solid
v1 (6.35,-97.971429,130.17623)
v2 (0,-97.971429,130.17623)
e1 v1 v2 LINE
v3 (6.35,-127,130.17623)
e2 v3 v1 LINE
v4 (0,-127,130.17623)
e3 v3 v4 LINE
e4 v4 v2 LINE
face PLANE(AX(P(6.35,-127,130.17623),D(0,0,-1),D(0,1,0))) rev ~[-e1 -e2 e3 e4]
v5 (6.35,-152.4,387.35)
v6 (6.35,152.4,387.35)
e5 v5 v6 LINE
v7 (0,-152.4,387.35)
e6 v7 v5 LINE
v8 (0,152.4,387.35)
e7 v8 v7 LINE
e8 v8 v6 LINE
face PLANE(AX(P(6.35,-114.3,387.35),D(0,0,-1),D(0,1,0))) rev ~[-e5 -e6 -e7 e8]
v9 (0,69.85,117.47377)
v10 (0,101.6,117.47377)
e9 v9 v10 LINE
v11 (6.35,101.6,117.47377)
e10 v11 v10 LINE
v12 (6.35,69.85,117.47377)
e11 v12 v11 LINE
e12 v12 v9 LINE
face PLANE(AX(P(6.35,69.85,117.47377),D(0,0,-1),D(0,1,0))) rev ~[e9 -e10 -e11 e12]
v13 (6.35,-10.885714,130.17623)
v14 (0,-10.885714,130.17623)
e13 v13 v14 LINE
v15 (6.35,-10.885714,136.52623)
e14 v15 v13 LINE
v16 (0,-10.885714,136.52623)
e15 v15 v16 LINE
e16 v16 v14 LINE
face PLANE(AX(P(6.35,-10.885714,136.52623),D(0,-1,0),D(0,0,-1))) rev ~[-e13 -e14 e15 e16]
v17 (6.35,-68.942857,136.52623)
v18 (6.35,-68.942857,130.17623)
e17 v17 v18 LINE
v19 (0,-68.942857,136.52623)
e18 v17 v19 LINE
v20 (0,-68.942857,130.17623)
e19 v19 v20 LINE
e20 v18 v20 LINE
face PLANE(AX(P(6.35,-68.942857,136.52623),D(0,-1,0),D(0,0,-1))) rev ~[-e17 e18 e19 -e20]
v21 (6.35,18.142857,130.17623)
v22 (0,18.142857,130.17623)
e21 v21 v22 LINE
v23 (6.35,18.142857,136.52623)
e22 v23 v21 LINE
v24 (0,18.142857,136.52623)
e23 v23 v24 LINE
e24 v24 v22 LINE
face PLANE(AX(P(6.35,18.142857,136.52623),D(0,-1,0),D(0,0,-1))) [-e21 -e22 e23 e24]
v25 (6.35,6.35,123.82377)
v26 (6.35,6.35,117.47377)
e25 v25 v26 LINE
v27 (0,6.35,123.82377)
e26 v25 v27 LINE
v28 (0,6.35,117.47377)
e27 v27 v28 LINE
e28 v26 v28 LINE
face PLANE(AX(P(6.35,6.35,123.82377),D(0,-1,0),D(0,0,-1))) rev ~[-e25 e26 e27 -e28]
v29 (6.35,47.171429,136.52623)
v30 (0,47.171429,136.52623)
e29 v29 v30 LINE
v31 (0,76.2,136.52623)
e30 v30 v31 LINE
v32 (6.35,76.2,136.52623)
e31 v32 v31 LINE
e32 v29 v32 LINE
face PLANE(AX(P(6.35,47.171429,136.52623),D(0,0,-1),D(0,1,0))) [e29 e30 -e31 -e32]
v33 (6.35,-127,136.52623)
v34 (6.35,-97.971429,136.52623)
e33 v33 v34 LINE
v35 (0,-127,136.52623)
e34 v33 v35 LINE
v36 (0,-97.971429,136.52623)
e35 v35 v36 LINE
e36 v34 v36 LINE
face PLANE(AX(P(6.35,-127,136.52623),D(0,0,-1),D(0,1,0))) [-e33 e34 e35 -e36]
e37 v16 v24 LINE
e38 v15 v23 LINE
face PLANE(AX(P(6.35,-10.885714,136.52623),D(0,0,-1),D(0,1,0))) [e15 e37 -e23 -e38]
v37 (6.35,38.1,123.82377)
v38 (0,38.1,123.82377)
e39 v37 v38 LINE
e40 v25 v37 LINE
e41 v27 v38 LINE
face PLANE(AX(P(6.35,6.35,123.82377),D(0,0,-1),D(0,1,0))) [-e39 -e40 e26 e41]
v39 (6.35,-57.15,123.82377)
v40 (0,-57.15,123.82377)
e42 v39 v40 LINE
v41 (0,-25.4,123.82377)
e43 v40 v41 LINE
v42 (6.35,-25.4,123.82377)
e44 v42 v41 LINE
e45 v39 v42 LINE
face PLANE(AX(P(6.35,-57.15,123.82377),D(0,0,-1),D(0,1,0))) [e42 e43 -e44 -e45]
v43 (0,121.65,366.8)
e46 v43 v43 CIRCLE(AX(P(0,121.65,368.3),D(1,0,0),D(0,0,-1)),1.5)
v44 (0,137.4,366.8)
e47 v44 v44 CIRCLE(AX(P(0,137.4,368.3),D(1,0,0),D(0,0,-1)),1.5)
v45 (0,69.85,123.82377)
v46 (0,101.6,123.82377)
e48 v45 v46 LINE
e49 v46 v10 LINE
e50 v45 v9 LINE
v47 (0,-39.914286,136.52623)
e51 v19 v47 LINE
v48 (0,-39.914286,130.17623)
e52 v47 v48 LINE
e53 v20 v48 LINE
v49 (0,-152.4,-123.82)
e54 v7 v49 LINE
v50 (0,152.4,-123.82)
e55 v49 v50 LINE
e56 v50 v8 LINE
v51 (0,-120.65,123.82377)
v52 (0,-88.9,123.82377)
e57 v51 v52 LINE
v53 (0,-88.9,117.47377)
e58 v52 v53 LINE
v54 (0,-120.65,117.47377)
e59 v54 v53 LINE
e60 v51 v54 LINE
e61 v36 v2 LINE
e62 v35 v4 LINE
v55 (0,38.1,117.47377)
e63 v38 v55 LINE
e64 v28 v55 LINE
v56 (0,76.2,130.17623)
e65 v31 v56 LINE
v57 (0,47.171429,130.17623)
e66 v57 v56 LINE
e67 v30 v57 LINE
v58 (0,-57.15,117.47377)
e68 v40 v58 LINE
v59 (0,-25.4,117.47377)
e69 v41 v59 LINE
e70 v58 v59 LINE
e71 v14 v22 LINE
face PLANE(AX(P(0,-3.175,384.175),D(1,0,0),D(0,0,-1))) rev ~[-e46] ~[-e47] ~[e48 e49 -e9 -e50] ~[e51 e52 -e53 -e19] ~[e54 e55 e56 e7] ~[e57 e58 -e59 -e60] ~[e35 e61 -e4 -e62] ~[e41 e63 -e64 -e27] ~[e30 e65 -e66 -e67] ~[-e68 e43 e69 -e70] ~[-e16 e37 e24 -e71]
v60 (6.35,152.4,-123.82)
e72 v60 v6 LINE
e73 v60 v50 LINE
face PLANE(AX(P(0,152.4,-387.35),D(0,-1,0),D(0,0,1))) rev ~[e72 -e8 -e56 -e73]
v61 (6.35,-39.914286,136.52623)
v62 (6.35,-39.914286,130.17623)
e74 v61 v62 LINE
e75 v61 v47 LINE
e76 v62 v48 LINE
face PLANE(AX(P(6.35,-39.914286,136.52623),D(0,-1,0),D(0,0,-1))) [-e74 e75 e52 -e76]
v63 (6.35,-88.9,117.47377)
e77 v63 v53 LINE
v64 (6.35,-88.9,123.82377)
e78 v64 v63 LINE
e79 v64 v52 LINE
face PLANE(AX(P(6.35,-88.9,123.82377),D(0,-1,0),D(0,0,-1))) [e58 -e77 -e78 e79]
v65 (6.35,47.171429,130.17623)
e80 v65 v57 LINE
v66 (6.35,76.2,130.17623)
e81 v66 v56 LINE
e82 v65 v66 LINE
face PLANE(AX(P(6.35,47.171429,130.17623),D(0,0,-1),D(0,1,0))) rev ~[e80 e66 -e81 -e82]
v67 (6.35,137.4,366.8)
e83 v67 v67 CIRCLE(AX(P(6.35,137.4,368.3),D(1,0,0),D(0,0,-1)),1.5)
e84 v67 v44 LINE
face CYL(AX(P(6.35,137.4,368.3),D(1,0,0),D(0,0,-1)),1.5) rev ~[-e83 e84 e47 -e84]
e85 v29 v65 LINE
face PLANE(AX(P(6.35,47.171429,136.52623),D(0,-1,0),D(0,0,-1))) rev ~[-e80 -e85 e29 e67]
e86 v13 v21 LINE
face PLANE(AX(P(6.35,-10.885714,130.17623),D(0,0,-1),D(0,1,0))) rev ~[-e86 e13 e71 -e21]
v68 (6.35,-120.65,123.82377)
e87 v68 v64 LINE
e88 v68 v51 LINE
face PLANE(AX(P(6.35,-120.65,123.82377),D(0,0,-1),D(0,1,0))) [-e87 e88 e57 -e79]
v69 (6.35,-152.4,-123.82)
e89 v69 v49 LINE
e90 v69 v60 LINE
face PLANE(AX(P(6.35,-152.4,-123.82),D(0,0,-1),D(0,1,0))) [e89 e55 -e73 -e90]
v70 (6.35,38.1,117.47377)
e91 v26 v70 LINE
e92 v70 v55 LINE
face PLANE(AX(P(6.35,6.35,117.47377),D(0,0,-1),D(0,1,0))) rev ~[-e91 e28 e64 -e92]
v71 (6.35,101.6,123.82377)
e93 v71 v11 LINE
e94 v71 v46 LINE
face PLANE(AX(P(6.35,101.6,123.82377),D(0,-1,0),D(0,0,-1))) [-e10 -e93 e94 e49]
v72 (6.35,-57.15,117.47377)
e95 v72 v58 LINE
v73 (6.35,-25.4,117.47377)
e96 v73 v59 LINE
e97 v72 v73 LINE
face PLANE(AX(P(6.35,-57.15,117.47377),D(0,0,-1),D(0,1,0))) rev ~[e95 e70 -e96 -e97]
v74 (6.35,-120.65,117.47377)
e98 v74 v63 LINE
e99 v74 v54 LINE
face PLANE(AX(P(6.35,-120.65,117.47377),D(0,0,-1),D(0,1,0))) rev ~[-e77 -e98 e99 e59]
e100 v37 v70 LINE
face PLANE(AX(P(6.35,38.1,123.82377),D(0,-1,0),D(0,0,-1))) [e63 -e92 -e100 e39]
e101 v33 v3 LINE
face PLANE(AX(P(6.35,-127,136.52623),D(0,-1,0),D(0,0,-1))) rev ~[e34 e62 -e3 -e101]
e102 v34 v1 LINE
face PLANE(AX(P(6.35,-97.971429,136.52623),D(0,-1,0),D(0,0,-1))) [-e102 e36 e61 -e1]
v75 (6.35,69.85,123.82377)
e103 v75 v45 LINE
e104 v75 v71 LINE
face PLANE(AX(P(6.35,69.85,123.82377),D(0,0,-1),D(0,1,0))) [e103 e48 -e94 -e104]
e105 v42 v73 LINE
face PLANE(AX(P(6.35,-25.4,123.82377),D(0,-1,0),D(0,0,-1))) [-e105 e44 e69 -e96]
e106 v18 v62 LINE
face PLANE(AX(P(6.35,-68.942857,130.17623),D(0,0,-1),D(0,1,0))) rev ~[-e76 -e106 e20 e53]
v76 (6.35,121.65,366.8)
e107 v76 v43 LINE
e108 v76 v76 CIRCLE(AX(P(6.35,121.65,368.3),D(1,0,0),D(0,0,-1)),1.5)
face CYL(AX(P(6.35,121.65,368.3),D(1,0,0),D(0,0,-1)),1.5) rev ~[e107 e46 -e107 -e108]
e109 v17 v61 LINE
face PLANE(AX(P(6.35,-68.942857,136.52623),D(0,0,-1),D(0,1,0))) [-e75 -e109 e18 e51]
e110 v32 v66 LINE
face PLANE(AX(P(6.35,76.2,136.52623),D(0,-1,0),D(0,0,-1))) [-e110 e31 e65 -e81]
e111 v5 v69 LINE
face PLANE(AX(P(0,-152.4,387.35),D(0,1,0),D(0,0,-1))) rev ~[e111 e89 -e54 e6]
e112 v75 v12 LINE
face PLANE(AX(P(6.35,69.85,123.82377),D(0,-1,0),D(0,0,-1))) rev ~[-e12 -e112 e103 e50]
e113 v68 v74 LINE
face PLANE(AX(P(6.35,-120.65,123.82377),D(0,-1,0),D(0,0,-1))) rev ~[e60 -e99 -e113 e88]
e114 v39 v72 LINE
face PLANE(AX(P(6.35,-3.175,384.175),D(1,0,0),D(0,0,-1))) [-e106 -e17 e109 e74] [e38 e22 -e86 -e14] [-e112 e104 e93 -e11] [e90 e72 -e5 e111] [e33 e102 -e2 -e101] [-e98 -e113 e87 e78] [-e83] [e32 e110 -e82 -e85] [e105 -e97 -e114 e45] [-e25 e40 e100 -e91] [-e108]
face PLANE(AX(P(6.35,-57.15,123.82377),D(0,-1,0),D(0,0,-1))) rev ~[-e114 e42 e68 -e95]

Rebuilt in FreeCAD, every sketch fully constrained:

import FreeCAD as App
import Part
import Sketcher
from FreeCAD import Vector
Q = App.Units.Quantity


def add_polygon(sketch, points):
    """Adds a closed chain of lines whose ends are joined by coincident constraints."""
    first, n = sketch.GeometryCount, len(points)
    for a, b in zip(points, points[1:] + points[:1]):
        sketch.addGeometry(Part.LineSegment(App.Vector(*a, 0), App.Vector(*b, 0)), False)
    for i in range(n):
        sketch.addConstraint(Sketcher.Constraint("Coincident", first + i, 2, first + (i + 1) % n, 1))

doc = App.newDocument("Part")
body = doc.addObject("PartDesign::Body", "Body")

# Sketch on YZ plane
sketch1 = doc.addObject("Sketcher::SketchObject", "Sketch")
body.addObject(sketch1)
sketch1.AttachmentSupport = (doc.YZ_Plane, [""])
sketch1.MapMode = "FlatFace"
add_polygon(sketch1, [(152.4, 387.35), (107.95, 387.35), (107.95, 381), (63.5, 381), (63.5, 387.35), (19.05, 387.35), (19.05, 381), (-25.4, 381), (-25.4, 387.35), (-69.85, 387.35), (-69.85, 381), (-114.3, 381), (-114.3, 387.35), (-152.4, 387.35), (-152.4, 327.757692), (-158.75, 327.757692), (-158.75, 268.165385), (-152.4, 268.165385), (-152.4, 208.573077), (-158.75, 208.573077), (-158.75, 148.980769), (-152.4, 148.980769), (-152.4, 89.388462), (-158.75, 89.388462), (-158.75, 29.796154), (-152.4, 29.796154), (-152.4, -29.796154), (-158.75, -29.796154), (-158.75, -89.388462), (-152.4, -89.388462), (-152.4, -148.980769), (-158.75, -148.980769), (-158.75, -208.573077), (-152.4, -208.573077), (-152.4, -268.165385), (-158.75, -268.165385), (-158.75, -327.757692), (-152.4, -327.757692), (-152.4, -387.35), (-114.3, -387.35), (-114.3, -381), (-69.85, -381), (-69.85, -387.35), (-25.4, -387.35), (-25.4, -381), (19.05, -381), (19.05, -387.35), (63.5, -387.35), (63.5, -381), (107.95, -381), (107.95, -387.35), (152.4, -387.35)])  # lines 0-51
sketch1.addConstraint(Sketcher.Constraint("Horizontal", 0))
sketch1.addConstraint(Sketcher.Constraint("Vertical", 1))
sketch1.addConstraint(Sketcher.Constraint("Horizontal", 2))
sketch1.addConstraint(Sketcher.Constraint("Vertical", 3))
sketch1.addConstraint(Sketcher.Constraint("Horizontal", 4))
sketch1.addConstraint(Sketcher.Constraint("Vertical", 5))
sketch1.addConstraint(Sketcher.Constraint("Horizontal", 6))
sketch1.addConstraint(Sketcher.Constraint("Vertical", 7))
sketch1.addConstraint(Sketcher.Constraint("Horizontal", 8))
sketch1.addConstraint(Sketcher.Constraint("Vertical", 9))
sketch1.addConstraint(Sketcher.Constraint("Horizontal", 10))
sketch1.addConstraint(Sketcher.Constraint("Vertical", 11))
sketch1.addConstraint(Sketcher.Constraint("Horizontal", 12))
sketch1.addConstraint(Sketcher.Constraint("Vertical", 13))
sketch1.addConstraint(Sketcher.Constraint("Horizontal", 14))
sketch1.addConstraint(Sketcher.Constraint("Vertical", 15))
sketch1.addConstraint(Sketcher.Constraint("Horizontal", 16))
sketch1.addConstraint(Sketcher.Constraint("Vertical", 17))
sketch1.addConstraint(Sketcher.Constraint("Horizontal", 18))
sketch1.addConstraint(Sketcher.Constraint("Vertical", 19))
sketch1.addConstraint(Sketcher.Constraint("Horizontal", 20))
sketch1.addConstraint(Sketcher.Constraint("Vertical", 21))
sketch1.addConstraint(Sketcher.Constraint("Horizontal", 22))
sketch1.addConstraint(Sketcher.Constraint("Vertical", 23))
sketch1.addConstraint(Sketcher.Constraint("Horizontal", 24))
sketch1.addConstraint(Sketcher.Constraint("Vertical", 25))
sketch1.addConstraint(Sketcher.Constraint("Horizontal", 26))
sketch1.addConstraint(Sketcher.Constraint("Vertical", 27))
sketch1.addConstraint(Sketcher.Constraint("Horizontal", 28))
sketch1.addConstraint(Sketcher.Constraint("Vertical", 29))
sketch1.addConstraint(Sketcher.Constraint("Horizontal", 30))
sketch1.addConstraint(Sketcher.Constraint("Vertical", 31))
sketch1.addConstraint(Sketcher.Constraint("Horizontal", 32))
sketch1.addConstraint(Sketcher.Constraint("Vertical", 33))
sketch1.addConstraint(Sketcher.Constraint("Horizontal", 34))
sketch1.addConstraint(Sketcher.Constraint("Vertical", 35))
sketch1.addConstraint(Sketcher.Constraint("Horizontal", 36))
sketch1.addConstraint(Sketcher.Constraint("Vertical", 37))
sketch1.addConstraint(Sketcher.Constraint("Horizontal", 38))
sketch1.addConstraint(Sketcher.Constraint("Vertical", 39))
sketch1.addConstraint(Sketcher.Constraint("Horizontal", 40))
sketch1.addConstraint(Sketcher.Constraint("Vertical", 41))
sketch1.addConstraint(Sketcher.Constraint("Horizontal", 42))
sketch1.addConstraint(Sketcher.Constraint("Vertical", 43))
sketch1.addConstraint(Sketcher.Constraint("Horizontal", 44))
sketch1.addConstraint(Sketcher.Constraint("Vertical", 45))
sketch1.addConstraint(Sketcher.Constraint("Horizontal", 46))
sketch1.addConstraint(Sketcher.Constraint("Vertical", 47))
sketch1.addConstraint(Sketcher.Constraint("Horizontal", 48))
sketch1.addConstraint(Sketcher.Constraint("Vertical", 49))
sketch1.addConstraint(Sketcher.Constraint("Horizontal", 50))
sketch1.addConstraint(Sketcher.Constraint("Vertical", 51))
sketch1.addConstraint(Sketcher.Constraint("Symmetric", 12, 2, 50, 2, -1, 1))
sketch1.addConstraint(Sketcher.Constraint("Symmetric", 37, 2, 51, 2, -1, 1))
sketch1.addConstraint(Sketcher.Constraint("Symmetric", 23, 2, 26, 2, -1))
sketch1.addConstraint(Sketcher.Constraint("Symmetric", 21, 2, 28, 2, -1))
sketch1.addConstraint(Sketcher.Constraint("Symmetric", 19, 2, 30, 2, -1))
sketch1.addConstraint(Sketcher.Constraint("Symmetric", 17, 2, 32, 2, -1))
sketch1.addConstraint(Sketcher.Constraint("Symmetric", 15, 2, 34, 2, -1))
sketch1.addConstraint(Sketcher.Constraint("Symmetric", 11, 2, 38, 2, -1))
sketch1.addConstraint(Sketcher.Constraint("Symmetric", 9, 2, 40, 2, -1))
sketch1.addConstraint(Sketcher.Constraint("Symmetric", 7, 2, 42, 2, -1))
sketch1.addConstraint(Sketcher.Constraint("Symmetric", 5, 2, 44, 2, -1))
sketch1.addConstraint(Sketcher.Constraint("Symmetric", 3, 2, 46, 2, -1))
sketch1.addConstraint(Sketcher.Constraint("Symmetric", 1, 2, 48, 2, -1))
sketch1.addConstraint(Sketcher.Constraint("Horizontal", 0, 2, 3, 2))
sketch1.addConstraint(Sketcher.Constraint("Horizontal", 2, 2, 5, 2))
sketch1.addConstraint(Sketcher.Constraint("Horizontal", 4, 2, 7, 2))
sketch1.addConstraint(Sketcher.Constraint("Horizontal", 6, 2, 9, 2))
sketch1.addConstraint(Sketcher.Constraint("Vertical", 13, 2, 16, 2))
sketch1.addConstraint(Sketcher.Constraint("Vertical", 15, 2, 18, 2))
sketch1.addConstraint(Sketcher.Constraint("Vertical", 17, 2, 20, 2))
sketch1.addConstraint(Sketcher.Constraint("Vertical", 19, 2, 22, 2))
sketch1.addConstraint(Sketcher.Constraint("Vertical", 21, 2, 24, 2))
sketch1.addConstraint(Sketcher.Constraint("Equal", 0, 2))
sketch1.addConstraint(Sketcher.Constraint("Equal", 2, 4))
sketch1.addConstraint(Sketcher.Constraint("Equal", 4, 6))
sketch1.addConstraint(Sketcher.Constraint("Equal", 6, 8))
sketch1.addConstraint(Sketcher.Constraint("Equal", 8, 10))
sketch1.addConstraint(Sketcher.Constraint("Equal", 36, 1))
sketch1.addConstraint(Sketcher.Constraint("Equal", 13, 15))
sketch1.addConstraint(Sketcher.Constraint("Equal", 15, 17))
sketch1.addConstraint(Sketcher.Constraint("Equal", 17, 19))
sketch1.addConstraint(Sketcher.Constraint("Equal", 19, 21))
sketch1.addConstraint(Sketcher.Constraint("Equal", 21, 23))
sketch1.addConstraint(Sketcher.Constraint("Equal", 23, 25))
sketch1.addConstraint(Sketcher.Constraint("Equal", 33, 35))
sketch1.addConstraint(Sketcher.Constraint("DistanceX", 12, 2, 12, 1, Q("1.5 in")))
sketch1.addConstraint(Sketcher.Constraint("DistanceY", 51, 1, 51, 2, Q("30.5 in")))
sketch1.addConstraint(Sketcher.Constraint("DistanceY", -1, 1, 1, 2, Q("15 in")))
sketch1.addConstraint(Sketcher.Constraint("DistanceX", 6, 2, -1, 1, Q("1 in")))
pad1 = doc.addObject("PartDesign::Pad", "Pad")
body.addObject(pad1)
pad1.Profile = sketch1
pad1.Length = Q("0.25 in")

# Sketch on YZ plane
sketch2 = doc.addObject("Sketcher::SketchObject", "Sketch001")
body.addObject(sketch2)
sketch2.AttachmentSupport = (doc.YZ_Plane, [""])
sketch2.MapMode = "FlatFace"
sketch2.AttachmentOffset = App.Placement(Vector(0, 0, 0.25 * 25.4), App.Rotation())
add_polygon(sketch2, [(76.2, 136.52623), (47.171429, 136.52623), (47.171429, 130.17623), (76.2, 130.17623)])  # lines 0-3
add_polygon(sketch2, [(101.6, 123.82377), (69.85, 123.82377), (69.85, 117.47377), (101.6, 117.47377)])  # lines 4-7
add_polygon(sketch2, [(38.1, 123.82377), (6.35, 123.82377), (6.35, 117.47377), (38.1, 117.47377)])  # lines 8-11
add_polygon(sketch2, [(-25.4, 123.82377), (-57.15, 123.82377), (-57.15, 117.47377), (-25.4, 117.47377)])  # lines 12-15
add_polygon(sketch2, [(-88.9, 123.82377), (-120.65, 123.82377), (-120.65, 117.47377), (-88.9, 117.47377)])  # lines 16-19
add_polygon(sketch2, [(18.142857, 136.52623), (-10.885714, 136.52623), (-10.885714, 130.17623), (18.142857, 130.17623)])  # lines 20-23
add_polygon(sketch2, [(-39.914286, 136.52623), (-68.942857, 136.52623), (-68.942857, 130.17623), (-39.914286, 130.17623)])  # lines 24-27
add_polygon(sketch2, [(-97.971429, 136.52623), (-127, 136.52623), (-127, 130.17623), (-97.971429, 130.17623)])  # lines 28-31
sketch2.addConstraint(Sketcher.Constraint("Horizontal", 0))
sketch2.addConstraint(Sketcher.Constraint("Vertical", 1))
sketch2.addConstraint(Sketcher.Constraint("Horizontal", 2))
sketch2.addConstraint(Sketcher.Constraint("Vertical", 3))
sketch2.addConstraint(Sketcher.Constraint("Horizontal", 4))
sketch2.addConstraint(Sketcher.Constraint("Vertical", 5))
sketch2.addConstraint(Sketcher.Constraint("Horizontal", 6))
sketch2.addConstraint(Sketcher.Constraint("Vertical", 7))
sketch2.addConstraint(Sketcher.Constraint("Horizontal", 8))
sketch2.addConstraint(Sketcher.Constraint("Vertical", 9))
sketch2.addConstraint(Sketcher.Constraint("Horizontal", 10))
sketch2.addConstraint(Sketcher.Constraint("Vertical", 11))
sketch2.addConstraint(Sketcher.Constraint("Horizontal", 12))
sketch2.addConstraint(Sketcher.Constraint("Vertical", 13))
sketch2.addConstraint(Sketcher.Constraint("Horizontal", 14))
sketch2.addConstraint(Sketcher.Constraint("Vertical", 15))
sketch2.addConstraint(Sketcher.Constraint("Horizontal", 16))
sketch2.addConstraint(Sketcher.Constraint("Vertical", 17))
sketch2.addConstraint(Sketcher.Constraint("Horizontal", 18))
sketch2.addConstraint(Sketcher.Constraint("Vertical", 19))
sketch2.addConstraint(Sketcher.Constraint("Horizontal", 20))
sketch2.addConstraint(Sketcher.Constraint("Vertical", 21))
sketch2.addConstraint(Sketcher.Constraint("Horizontal", 22))
sketch2.addConstraint(Sketcher.Constraint("Vertical", 23))
sketch2.addConstraint(Sketcher.Constraint("Horizontal", 24))
sketch2.addConstraint(Sketcher.Constraint("Vertical", 25))
sketch2.addConstraint(Sketcher.Constraint("Horizontal", 26))
sketch2.addConstraint(Sketcher.Constraint("Vertical", 27))
sketch2.addConstraint(Sketcher.Constraint("Horizontal", 28))
sketch2.addConstraint(Sketcher.Constraint("Vertical", 29))
sketch2.addConstraint(Sketcher.Constraint("Horizontal", 30))
sketch2.addConstraint(Sketcher.Constraint("Vertical", 31))
sketch2.addConstraint(Sketcher.Constraint("Horizontal", 7, 2, 8, 2))
sketch2.addConstraint(Sketcher.Constraint("Horizontal", 6, 2, 9, 2))
sketch2.addConstraint(Sketcher.Constraint("Horizontal", 11, 2, 12, 2))
sketch2.addConstraint(Sketcher.Constraint("Horizontal", 10, 2, 13, 2))
sketch2.addConstraint(Sketcher.Constraint("Horizontal", 15, 2, 16, 2))
sketch2.addConstraint(Sketcher.Constraint("Horizontal", 14, 2, 17, 2))
sketch2.addConstraint(Sketcher.Constraint("Horizontal", 3, 2, 20, 2))
sketch2.addConstraint(Sketcher.Constraint("Horizontal", 2, 2, 21, 2))
sketch2.addConstraint(Sketcher.Constraint("Horizontal", 23, 2, 24, 2))
sketch2.addConstraint(Sketcher.Constraint("Horizontal", 22, 2, 25, 2))
sketch2.addConstraint(Sketcher.Constraint("Horizontal", 27, 2, 28, 2))
sketch2.addConstraint(Sketcher.Constraint("Horizontal", 26, 2, 29, 2))
sketch2.addConstraint(Sketcher.Constraint("Equal", 6, 8))
sketch2.addConstraint(Sketcher.Constraint("Equal", 10, 12))
sketch2.addConstraint(Sketcher.Constraint("Equal", 14, 16))
sketch2.addConstraint(Sketcher.Constraint("Equal", 2, 20))
sketch2.addConstraint(Sketcher.Constraint("Equal", 22, 24))
sketch2.addConstraint(Sketcher.Constraint("Equal", 26, 28))
sketch2.addConstraint(Sketcher.Constraint("Equal", 3, 5))
sketch2.addConstraint(Sketcher.Constraint("DistanceX", -1, 1, 2, 2, Q("3 in")))
sketch2.addConstraint(Sketcher.Constraint("DistanceX", -1, 1, 6, 2, Q("4 in")))
sketch2.addConstraint(Sketcher.Constraint("DistanceX", 14, 2, -1, 1, Q("1 in")))
sketch2.addConstraint(Sketcher.Constraint("DistanceX", 28, 2, -1, 1, Q("5 in")))
sketch2.addConstraint(Sketcher.Constraint("DistanceX", 16, 2, 8, 2, Q("5 in")))
sketch2.addConstraint(Sketcher.Constraint("DistanceX", 4, 2, 4, 1, Q("1.25 in")))
sketch2.addConstraint(Sketcher.Constraint("DistanceY", 1, 2, 1, 1, Q("0.25 in")))
sketch2.addConstraint(Sketcher.Constraint("DistanceX", -1, 1, 10, 2, Q("1.5 in")))
sketch2.addConstraint(Sketcher.Constraint("DistanceX", 0, 2, 0, 1, 29.028571))
sketch2.addConstraint(Sketcher.Constraint("DistanceY", -1, 1, 0, 2, 136.52623))
sketch2.addConstraint(Sketcher.Constraint("DistanceY", -1, 1, 4, 2, 123.82377))
sketch2.addConstraint(Sketcher.Constraint("DistanceX", 22, 2, 1, 2, 29.028571))
sketch2.addConstraint(Sketcher.Constraint("DistanceX", 26, 2, 21, 2, 29.028571))
pocket1 = doc.addObject("PartDesign::Pocket", "Pocket")
body.addObject(pocket1)
pocket1.Profile = sketch2
pocket1.Type = "ThroughAll"

# Sketch on YZ plane
sketch3 = doc.addObject("Sketcher::SketchObject", "Sketch002")
body.addObject(sketch3)
sketch3.AttachmentSupport = (doc.YZ_Plane, [""])
sketch3.MapMode = "FlatFace"
sketch3.AttachmentOffset = App.Placement(Vector(0, 0, 0.25 * 25.4), App.Rotation())
sketch3.addGeometry(Part.Circle(Vector(137.4, 368.3, 0), Vector(0, 0, 1), 1.5), False)
sketch3.addGeometry(Part.Circle(Vector(121.65, 368.3, 0), Vector(0, 0, 1), 1.5), False)
sketch3.addGeometry(Part.Circle(Vector(137.4, -368.3, 0), Vector(0, 0, 1), 1.5), False)
sketch3.addGeometry(Part.Circle(Vector(121.65, -368.3, 0), Vector(0, 0, 1), 1.5), False)
sketch3.addConstraint(Sketcher.Constraint("Equal", 0, 1))
sketch3.addConstraint(Sketcher.Constraint("Equal", 1, 2))
sketch3.addConstraint(Sketcher.Constraint("Equal", 2, 3))
sketch3.addConstraint(Sketcher.Constraint("Symmetric", 0, 3, 2, 3, -1))
sketch3.addConstraint(Sketcher.Constraint("Symmetric", 1, 3, 3, 3, -1))
sketch3.addConstraint(Sketcher.Constraint("Horizontal", 0, 3, 1, 3))
sketch3.addConstraint(Sketcher.Constraint("DistanceY", 2, 3, 0, 3, Q("29 in")))
sketch3.addConstraint(Sketcher.Constraint("Diameter", 0, 3.0))
sketch3.addConstraint(Sketcher.Constraint("DistanceX", -1, 1, 0, 3, 137.4))
sketch3.addConstraint(Sketcher.Constraint("DistanceX", -1, 1, 1, 3, 121.65))
pocket2 = doc.addObject("PartDesign::Pocket", "Pocket001")
body.addObject(pocket2)
pocket2.Profile = sketch3
pocket2.Length = Q("0.25 in")

# Sketch on YZ plane
sketch4 = doc.addObject("Sketcher::SketchObject", "Sketch003")
body.addObject(sketch4)
sketch4.AttachmentSupport = (doc.YZ_Plane, [""])
sketch4.MapMode = "FlatFace"
sketch4.AttachmentOffset = App.Placement(Vector(0, 0, 0.25 * 25.4), App.Rotation())
add_polygon(sketch4, [(63.5, 387.35), (19.05, 387.35), (19.05, 381), (63.5, 381)])  # lines 0-3
add_polygon(sketch4, [(-25.4, 387.35), (-69.85, 387.35), (-69.85, 381), (-25.4, 381)])  # lines 4-7
add_polygon(sketch4, [(-152.4, 208.573077), (-158.75, 208.573077), (-158.75, 148.980769), (-152.4, 148.980769)])  # lines 8-11
add_polygon(sketch4, [(-152.4, 89.388462), (-158.75, 89.388462), (-158.75, 29.796154), (-152.4, 29.796154)])  # lines 12-15
add_polygon(sketch4, [(-152.4, -29.796154), (-158.75, -29.796154), (-158.75, -89.388462), (-152.4, -89.388462)])  # lines 16-19
add_polygon(sketch4, [(-152.4, -148.980769), (-158.75, -148.980769), (-158.75, -208.573077), (-152.4, -208.573077)])  # lines 20-23
add_polygon(sketch4, [(-25.4, -381), (-69.85, -381), (-69.85, -387.35), (-25.4, -387.35)])  # lines 24-27
add_polygon(sketch4, [(63.5, -381), (19.05, -381), (19.05, -387.35), (63.5, -387.35)])  # lines 28-31
sketch4.addConstraint(Sketcher.Constraint("Horizontal", 0))
sketch4.addConstraint(Sketcher.Constraint("Vertical", 1))
sketch4.addConstraint(Sketcher.Constraint("Horizontal", 2))
sketch4.addConstraint(Sketcher.Constraint("Vertical", 3))
sketch4.addConstraint(Sketcher.Constraint("Horizontal", 4))
sketch4.addConstraint(Sketcher.Constraint("Vertical", 5))
sketch4.addConstraint(Sketcher.Constraint("Horizontal", 6))
sketch4.addConstraint(Sketcher.Constraint("Vertical", 7))
sketch4.addConstraint(Sketcher.Constraint("Horizontal", 8))
sketch4.addConstraint(Sketcher.Constraint("Vertical", 9))
sketch4.addConstraint(Sketcher.Constraint("Horizontal", 10))
sketch4.addConstraint(Sketcher.Constraint("Vertical", 11))
sketch4.addConstraint(Sketcher.Constraint("Horizontal", 12))
sketch4.addConstraint(Sketcher.Constraint("Vertical", 13))
sketch4.addConstraint(Sketcher.Constraint("Horizontal", 14))
sketch4.addConstraint(Sketcher.Constraint("Vertical", 15))
sketch4.addConstraint(Sketcher.Constraint("Horizontal", 16))
sketch4.addConstraint(Sketcher.Constraint("Vertical", 17))
sketch4.addConstraint(Sketcher.Constraint("Horizontal", 18))
sketch4.addConstraint(Sketcher.Constraint("Vertical", 19))
sketch4.addConstraint(Sketcher.Constraint("Horizontal", 20))
sketch4.addConstraint(Sketcher.Constraint("Vertical", 21))
sketch4.addConstraint(Sketcher.Constraint("Horizontal", 22))
sketch4.addConstraint(Sketcher.Constraint("Vertical", 23))
sketch4.addConstraint(Sketcher.Constraint("Horizontal", 24))
sketch4.addConstraint(Sketcher.Constraint("Vertical", 25))
sketch4.addConstraint(Sketcher.Constraint("Horizontal", 26))
sketch4.addConstraint(Sketcher.Constraint("Vertical", 27))
sketch4.addConstraint(Sketcher.Constraint("Horizontal", 28))
sketch4.addConstraint(Sketcher.Constraint("Vertical", 29))
sketch4.addConstraint(Sketcher.Constraint("Horizontal", 30))
sketch4.addConstraint(Sketcher.Constraint("Vertical", 31))
sketch4.addConstraint(Sketcher.Constraint("Symmetric", 13, 2, 16, 2, -1))
sketch4.addConstraint(Sketcher.Constraint("Symmetric", 15, 2, 18, 2, -1))
sketch4.addConstraint(Sketcher.Constraint("Symmetric", 9, 2, 20, 2, -1))
sketch4.addConstraint(Sketcher.Constraint("Symmetric", 11, 2, 22, 2, -1))
sketch4.addConstraint(Sketcher.Constraint("Symmetric", 5, 2, 24, 2, -1))
sketch4.addConstraint(Sketcher.Constraint("Symmetric", 7, 2, 26, 2, -1))
sketch4.addConstraint(Sketcher.Constraint("Symmetric", 1, 2, 28, 2, -1))
sketch4.addConstraint(Sketcher.Constraint("Symmetric", 3, 2, 30, 2, -1))
sketch4.addConstraint(Sketcher.Constraint("Horizontal", 3, 2, 4, 2))
sketch4.addConstraint(Sketcher.Constraint("Horizontal", 2, 2, 5, 2))
sketch4.addConstraint(Sketcher.Constraint("Vertical", 9, 2, 12, 2))
sketch4.addConstraint(Sketcher.Constraint("Vertical", 11, 2, 14, 2))
sketch4.addConstraint(Sketcher.Constraint("Equal", 2, 4))
sketch4.addConstraint(Sketcher.Constraint("Equal", 22, 1))
sketch4.addConstraint(Sketcher.Constraint("Equal", 11, 13))
sketch4.addConstraint(Sketcher.Constraint("DistanceY", -1, 1, 1, 2, Q("15 in")))
sketch4.addConstraint(Sketcher.Constraint("DistanceX", 6, 2, -1, 1, Q("1 in")))
sketch4.addConstraint(Sketcher.Constraint("DistanceX", 10, 2, -1, 1, Q("6 in")))
sketch4.addConstraint(Sketcher.Constraint("DistanceX", 8, 2, 1, 2, Q("7 in")))
sketch4.addConstraint(Sketcher.Constraint("DistanceX", 0, 2, 0, 1, Q("1.75 in")))
sketch4.addConstraint(Sketcher.Constraint("DistanceX", 8, 2, 8, 1, Q("0.25 in")))
sketch4.addConstraint(Sketcher.Constraint("DistanceY", 9, 2, 9, 1, 59.592308))
sketch4.addConstraint(Sketcher.Constraint("DistanceY", -1, 1, 9, 2, 148.980769))
sketch4.addConstraint(Sketcher.Constraint("DistanceY", -1, 1, 12, 2, 89.388462))
pocket3 = doc.addObject("PartDesign::Pocket", "Pocket002")
body.addObject(pocket3)
pocket3.Profile = sketch4
pocket3.Length = Q("0.25 in")

# Sketch on YZ plane
sketch5 = doc.addObject("Sketcher::SketchObject", "Sketch004")
body.addObject(sketch5)
sketch5.AttachmentSupport = (doc.YZ_Plane, [""])
sketch5.MapMode = "FlatFace"
sketch5.AttachmentOffset = App.Placement(Vector(0, 0, 0.25 * 25.4), App.Rotation())
add_polygon(sketch5, [(107.95, 387.35), (-114.3, 387.35), (-114.3, 381), (107.95, 381)])  # lines 0-3
add_polygon(sketch5, [(107.95, -381), (-114.3, -381), (-114.3, -387.35), (107.95, -387.35)])  # lines 4-7
sketch5.addConstraint(Sketcher.Constraint("Horizontal", 0))
sketch5.addConstraint(Sketcher.Constraint("Vertical", 1))
sketch5.addConstraint(Sketcher.Constraint("Horizontal", 2))
sketch5.addConstraint(Sketcher.Constraint("Vertical", 3))
sketch5.addConstraint(Sketcher.Constraint("Horizontal", 4))
sketch5.addConstraint(Sketcher.Constraint("Vertical", 5))
sketch5.addConstraint(Sketcher.Constraint("Horizontal", 6))
sketch5.addConstraint(Sketcher.Constraint("Vertical", 7))
sketch5.addConstraint(Sketcher.Constraint("Symmetric", 1, 2, 4, 2, -1))
sketch5.addConstraint(Sketcher.Constraint("Symmetric", 3, 2, 6, 2, -1))
sketch5.addConstraint(Sketcher.Constraint("DistanceY", -1, 1, 1, 2, Q("15 in")))
sketch5.addConstraint(Sketcher.Constraint("DistanceX", 0, 2, 0, 1, Q("8.75 in")))
sketch5.addConstraint(Sketcher.Constraint("DistanceY", 1, 2, 1, 1, Q("0.25 in")))
sketch5.addConstraint(Sketcher.Constraint("DistanceX", 0, 2, -1, 1, Q("4.5 in")))
pad2 = doc.addObject("PartDesign::Pad", "Pad001")
body.addObject(pad2)
pad2.Profile = sketch5
pad2.Length = Q("0.25 in")
pad2.Reversed = True

# Sketch on YZ plane
sketch6 = doc.addObject("Sketcher::SketchObject", "Sketch005")
body.addObject(sketch6)
sketch6.AttachmentSupport = (doc.YZ_Plane, [""])
sketch6.MapMode = "FlatFace"
sketch6.AttachmentOffset = App.Placement(Vector(0, 0, 0.25 * 25.4), App.Rotation())
add_polygon(sketch6, [(-152.4, 387.35), (-167.096452, 387.35), (-167.096452, -387.35), (-152.4, -387.35)])  # lines 0-3
sketch6.addConstraint(Sketcher.Constraint("Horizontal", 0))
sketch6.addConstraint(Sketcher.Constraint("Vertical", 1))
sketch6.addConstraint(Sketcher.Constraint("Horizontal", 2))
sketch6.addConstraint(Sketcher.Constraint("Vertical", 3))
sketch6.addConstraint(Sketcher.Constraint("DistanceY", 1, 2, 1, 1, Q("30.5 in")))
sketch6.addConstraint(Sketcher.Constraint("DistanceX", 2, 2, -1, 1, Q("6 in")))
sketch6.addConstraint(Sketcher.Constraint("DistanceY", -1, 1, 0, 2, Q("15.25 in")))
sketch6.addConstraint(Sketcher.Constraint("DistanceX", 0, 2, 0, 1, 14.696452))
pocket4 = doc.addObject("PartDesign::Pocket", "Pocket003")
body.addObject(pocket4)
pocket4.Profile = sketch6
pocket4.Length = Q("0.25 in")

# Sketch on YZ plane
sketch7 = doc.addObject("Sketcher::SketchObject", "Sketch006")
body.addObject(sketch7)
sketch7.AttachmentSupport = (doc.YZ_Plane, [""])
sketch7.MapMode = "FlatFace"
sketch7.AttachmentOffset = App.Placement(Vector(0, 0, 0.25 * 25.4), App.Rotation())
add_polygon(sketch7, [(152.4, -123.82), (-152.4, -123.82), (-152.4, -387.35), (152.4, -387.35)])  # lines 0-3
sketch7.addConstraint(Sketcher.Constraint("Horizontal", 0))
sketch7.addConstraint(Sketcher.Constraint("Vertical", 1))
sketch7.addConstraint(Sketcher.Constraint("Horizontal", 2))
sketch7.addConstraint(Sketcher.Constraint("Vertical", 3))
sketch7.addConstraint(Sketcher.Constraint("DistanceX", 0, 2, 0, 1, Q("12 in")))
sketch7.addConstraint(Sketcher.Constraint("DistanceX", 0, 2, -1, 1, Q("6 in")))
sketch7.addConstraint(Sketcher.Constraint("DistanceY", 1, 2, -1, 1, Q("15.25 in")))
sketch7.addConstraint(Sketcher.Constraint("DistanceY", 1, 2, 1, 1, 263.53))
pocket5 = doc.addObject("PartDesign::Pocket", "Pocket004")
body.addObject(pocket5)
pocket5.Profile = sketch7
pocket5.Type = "ThroughAll"

doc.recompute()
